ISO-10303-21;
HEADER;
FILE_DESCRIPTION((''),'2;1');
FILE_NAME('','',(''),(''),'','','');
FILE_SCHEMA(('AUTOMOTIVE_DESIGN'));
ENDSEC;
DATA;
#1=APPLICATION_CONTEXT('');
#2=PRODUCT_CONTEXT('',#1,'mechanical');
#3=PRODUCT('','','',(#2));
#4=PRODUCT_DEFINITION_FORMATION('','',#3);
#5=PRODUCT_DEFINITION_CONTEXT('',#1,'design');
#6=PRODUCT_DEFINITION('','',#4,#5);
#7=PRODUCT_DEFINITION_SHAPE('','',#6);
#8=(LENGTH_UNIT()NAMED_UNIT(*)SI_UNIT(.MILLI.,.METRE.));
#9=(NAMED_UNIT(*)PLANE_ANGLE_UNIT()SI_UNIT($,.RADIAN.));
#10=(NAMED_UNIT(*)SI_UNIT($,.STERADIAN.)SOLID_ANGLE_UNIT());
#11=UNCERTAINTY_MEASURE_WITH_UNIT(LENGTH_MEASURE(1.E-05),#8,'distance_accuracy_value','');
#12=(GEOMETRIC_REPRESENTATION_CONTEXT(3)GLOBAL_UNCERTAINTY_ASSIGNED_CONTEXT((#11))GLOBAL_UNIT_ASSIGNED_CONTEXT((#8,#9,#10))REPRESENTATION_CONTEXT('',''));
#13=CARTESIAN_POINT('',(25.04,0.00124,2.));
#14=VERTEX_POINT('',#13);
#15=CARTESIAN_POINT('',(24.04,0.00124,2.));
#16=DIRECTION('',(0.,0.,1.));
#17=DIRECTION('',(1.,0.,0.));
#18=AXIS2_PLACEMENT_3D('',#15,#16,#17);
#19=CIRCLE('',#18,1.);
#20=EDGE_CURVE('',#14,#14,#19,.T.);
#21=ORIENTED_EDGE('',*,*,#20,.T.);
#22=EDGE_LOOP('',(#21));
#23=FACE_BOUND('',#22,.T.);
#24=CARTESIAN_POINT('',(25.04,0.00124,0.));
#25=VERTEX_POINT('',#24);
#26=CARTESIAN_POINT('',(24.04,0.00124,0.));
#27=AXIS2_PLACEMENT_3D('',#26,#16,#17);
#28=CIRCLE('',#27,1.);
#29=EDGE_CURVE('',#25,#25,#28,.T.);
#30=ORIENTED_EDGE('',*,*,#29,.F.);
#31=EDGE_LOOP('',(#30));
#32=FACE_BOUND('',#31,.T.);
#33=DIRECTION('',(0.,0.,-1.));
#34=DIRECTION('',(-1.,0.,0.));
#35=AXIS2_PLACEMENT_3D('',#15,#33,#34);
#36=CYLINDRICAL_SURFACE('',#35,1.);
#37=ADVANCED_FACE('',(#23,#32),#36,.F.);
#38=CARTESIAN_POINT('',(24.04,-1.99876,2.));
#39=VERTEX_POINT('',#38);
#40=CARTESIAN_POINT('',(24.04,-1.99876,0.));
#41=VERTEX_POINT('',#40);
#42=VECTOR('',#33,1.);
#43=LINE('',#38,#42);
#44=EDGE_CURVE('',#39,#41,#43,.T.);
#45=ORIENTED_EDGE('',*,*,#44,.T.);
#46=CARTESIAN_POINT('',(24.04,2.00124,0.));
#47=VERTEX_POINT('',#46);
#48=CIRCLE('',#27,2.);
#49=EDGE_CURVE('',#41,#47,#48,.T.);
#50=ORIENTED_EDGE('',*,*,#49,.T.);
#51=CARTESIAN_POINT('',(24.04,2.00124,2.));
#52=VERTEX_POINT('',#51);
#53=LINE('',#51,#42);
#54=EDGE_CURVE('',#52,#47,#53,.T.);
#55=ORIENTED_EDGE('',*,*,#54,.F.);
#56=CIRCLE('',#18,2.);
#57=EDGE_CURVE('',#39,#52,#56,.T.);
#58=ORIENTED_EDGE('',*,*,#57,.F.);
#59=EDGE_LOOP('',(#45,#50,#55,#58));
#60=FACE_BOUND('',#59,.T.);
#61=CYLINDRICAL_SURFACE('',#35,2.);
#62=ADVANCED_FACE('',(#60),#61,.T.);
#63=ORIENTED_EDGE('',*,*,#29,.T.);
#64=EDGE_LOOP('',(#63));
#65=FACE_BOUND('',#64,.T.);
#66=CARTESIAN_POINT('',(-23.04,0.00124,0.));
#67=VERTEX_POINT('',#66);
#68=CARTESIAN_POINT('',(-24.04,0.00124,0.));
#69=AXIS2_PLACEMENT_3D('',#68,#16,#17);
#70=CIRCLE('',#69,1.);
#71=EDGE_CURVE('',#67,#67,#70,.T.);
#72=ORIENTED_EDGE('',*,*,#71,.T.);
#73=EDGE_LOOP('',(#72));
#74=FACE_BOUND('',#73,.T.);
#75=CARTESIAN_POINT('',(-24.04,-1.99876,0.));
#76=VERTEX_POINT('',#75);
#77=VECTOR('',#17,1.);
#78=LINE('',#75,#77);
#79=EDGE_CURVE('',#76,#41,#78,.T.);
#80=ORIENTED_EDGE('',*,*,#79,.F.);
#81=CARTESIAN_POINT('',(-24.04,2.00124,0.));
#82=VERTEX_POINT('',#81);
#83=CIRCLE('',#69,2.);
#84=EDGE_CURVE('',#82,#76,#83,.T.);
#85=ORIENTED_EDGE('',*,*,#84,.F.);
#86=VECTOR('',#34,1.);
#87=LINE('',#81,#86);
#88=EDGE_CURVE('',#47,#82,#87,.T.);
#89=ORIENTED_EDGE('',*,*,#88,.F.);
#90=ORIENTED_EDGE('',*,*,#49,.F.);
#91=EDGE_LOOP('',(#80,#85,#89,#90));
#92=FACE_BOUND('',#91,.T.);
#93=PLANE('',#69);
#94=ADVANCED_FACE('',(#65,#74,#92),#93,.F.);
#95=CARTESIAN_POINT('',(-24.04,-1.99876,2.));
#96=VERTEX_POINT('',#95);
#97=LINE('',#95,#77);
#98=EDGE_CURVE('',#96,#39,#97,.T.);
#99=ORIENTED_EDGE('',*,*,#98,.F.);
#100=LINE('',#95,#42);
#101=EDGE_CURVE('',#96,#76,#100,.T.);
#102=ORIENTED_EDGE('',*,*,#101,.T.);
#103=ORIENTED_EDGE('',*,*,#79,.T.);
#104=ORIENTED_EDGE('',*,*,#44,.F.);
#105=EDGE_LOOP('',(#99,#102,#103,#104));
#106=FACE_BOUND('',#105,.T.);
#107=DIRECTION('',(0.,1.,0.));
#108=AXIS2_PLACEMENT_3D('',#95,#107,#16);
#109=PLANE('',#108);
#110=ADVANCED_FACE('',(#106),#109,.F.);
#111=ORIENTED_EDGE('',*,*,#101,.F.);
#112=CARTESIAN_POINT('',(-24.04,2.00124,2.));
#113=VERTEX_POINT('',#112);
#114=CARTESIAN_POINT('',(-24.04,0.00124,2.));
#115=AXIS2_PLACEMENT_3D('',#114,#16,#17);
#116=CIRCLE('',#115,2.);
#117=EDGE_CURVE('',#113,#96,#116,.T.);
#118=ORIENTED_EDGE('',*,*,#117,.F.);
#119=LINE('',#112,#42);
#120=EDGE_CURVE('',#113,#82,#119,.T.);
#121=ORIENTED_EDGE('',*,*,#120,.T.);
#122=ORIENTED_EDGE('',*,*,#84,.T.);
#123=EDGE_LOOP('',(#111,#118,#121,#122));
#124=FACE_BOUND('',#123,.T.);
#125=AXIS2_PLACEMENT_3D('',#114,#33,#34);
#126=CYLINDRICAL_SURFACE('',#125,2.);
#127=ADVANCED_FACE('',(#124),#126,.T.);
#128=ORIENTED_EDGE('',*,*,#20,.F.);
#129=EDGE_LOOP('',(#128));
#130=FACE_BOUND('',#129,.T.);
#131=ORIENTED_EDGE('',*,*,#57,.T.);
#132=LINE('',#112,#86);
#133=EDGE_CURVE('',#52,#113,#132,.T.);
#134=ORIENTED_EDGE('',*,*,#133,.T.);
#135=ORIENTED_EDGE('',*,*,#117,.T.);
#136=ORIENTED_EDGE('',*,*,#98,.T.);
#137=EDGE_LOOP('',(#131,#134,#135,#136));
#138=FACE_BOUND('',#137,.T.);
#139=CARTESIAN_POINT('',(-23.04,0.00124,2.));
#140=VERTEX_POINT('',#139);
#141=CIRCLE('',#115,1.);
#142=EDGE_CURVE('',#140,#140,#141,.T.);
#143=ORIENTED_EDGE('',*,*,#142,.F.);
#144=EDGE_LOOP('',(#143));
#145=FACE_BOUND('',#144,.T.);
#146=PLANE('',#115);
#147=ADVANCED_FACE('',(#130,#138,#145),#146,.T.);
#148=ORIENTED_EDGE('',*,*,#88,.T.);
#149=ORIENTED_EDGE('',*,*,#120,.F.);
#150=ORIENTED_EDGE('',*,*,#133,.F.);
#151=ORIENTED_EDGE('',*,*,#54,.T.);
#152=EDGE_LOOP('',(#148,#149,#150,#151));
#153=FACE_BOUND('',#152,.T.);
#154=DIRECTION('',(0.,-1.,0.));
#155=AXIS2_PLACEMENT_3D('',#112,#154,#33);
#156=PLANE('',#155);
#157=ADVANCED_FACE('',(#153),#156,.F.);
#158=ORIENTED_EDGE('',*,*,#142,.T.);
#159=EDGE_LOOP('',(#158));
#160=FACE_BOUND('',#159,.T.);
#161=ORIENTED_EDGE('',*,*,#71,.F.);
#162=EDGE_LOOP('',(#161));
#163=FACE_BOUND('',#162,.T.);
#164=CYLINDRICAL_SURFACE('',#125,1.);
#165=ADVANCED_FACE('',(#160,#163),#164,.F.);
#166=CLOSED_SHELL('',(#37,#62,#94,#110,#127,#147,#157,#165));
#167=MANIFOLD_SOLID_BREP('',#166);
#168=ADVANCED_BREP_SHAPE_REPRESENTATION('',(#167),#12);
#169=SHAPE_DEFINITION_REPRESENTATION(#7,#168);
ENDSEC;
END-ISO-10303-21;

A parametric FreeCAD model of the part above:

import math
import FreeCAD as App
import Part
import Sketcher

V = App.Vector

doc = App.newDocument("Part")
body = doc.addObject("PartDesign::Body", "Body")

sketch1 = doc.addObject("Sketcher::SketchObject", "Sketch")
body.addObject(sketch1)
sketch1.AttachmentSupport = (doc.XY_Plane, [""])
sketch1.MapMode = "FlatFace"
sketch1.addGeometry(Part.LineSegment(V(24, 2, 0), V(-24, 2, 0)), False)
sketch1.addGeometry(Part.ArcOfCircle(Part.Circle(V(-24, 0, 0), V(0, 0, 1), 2), math.radians(90), math.radians(270)), False)
sketch1.addGeometry(Part.LineSegment(V(-24, -2, 0), V(24, -2, 0)), False)
sketch1.addGeometry(Part.ArcOfCircle(Part.Circle(V(24, 0, 0), V(0, 0, 1), 2), math.radians(-90), math.radians(90)), False)
sketch1.addGeometry(Part.Circle(V(24, 0, 0), V(0, 0, 1), 1), False)
sketch1.addGeometry(Part.Circle(V(-24, 0, 0), V(0, 0, 1), 1), False)
sketch1.addConstraint(Sketcher.Constraint("Tangent", 0, 2, 1, 1))
sketch1.addConstraint(Sketcher.Constraint("Tangent", 1, 2, 2, 1))
sketch1.addConstraint(Sketcher.Constraint("Tangent", 2, 2, 3, 1))
sketch1.addConstraint(Sketcher.Constraint("Tangent", 3, 2, 0, 1))
sketch1.addConstraint(Sketcher.Constraint("Horizontal", 0))
sketch1.addConstraint(Sketcher.Constraint("Horizontal", 2))
sketch1.addConstraint(Sketcher.Constraint("Coincident", 4, 3, 3, 3))
sketch1.addConstraint(Sketcher.Constraint("Coincident", 5, 3, 1, 3))
sketch1.addConstraint(Sketcher.Constraint("Equal", 4, 5))
sketch1.addConstraint(Sketcher.Constraint("Diameter", 4, 2.0))
sketch1.addConstraint(Sketcher.Constraint("Radius", 1, 2.0))
sketch1.addConstraint(Sketcher.Constraint("DistanceX", 0, 2, 0, 1, 48.08))
sketch1.addConstraint(Sketcher.Constraint("DistanceX", 1, 3, -1, 1, 24.04))
sketch1.addConstraint(Sketcher.Constraint("DistanceY", -1, 1, 1, 3, 0.00124))
pad1 = doc.addObject("PartDesign::Pad", "Pad")
body.addObject(pad1)
pad1.Profile = sketch1
pad1.Length = 2

doc.recompute()
